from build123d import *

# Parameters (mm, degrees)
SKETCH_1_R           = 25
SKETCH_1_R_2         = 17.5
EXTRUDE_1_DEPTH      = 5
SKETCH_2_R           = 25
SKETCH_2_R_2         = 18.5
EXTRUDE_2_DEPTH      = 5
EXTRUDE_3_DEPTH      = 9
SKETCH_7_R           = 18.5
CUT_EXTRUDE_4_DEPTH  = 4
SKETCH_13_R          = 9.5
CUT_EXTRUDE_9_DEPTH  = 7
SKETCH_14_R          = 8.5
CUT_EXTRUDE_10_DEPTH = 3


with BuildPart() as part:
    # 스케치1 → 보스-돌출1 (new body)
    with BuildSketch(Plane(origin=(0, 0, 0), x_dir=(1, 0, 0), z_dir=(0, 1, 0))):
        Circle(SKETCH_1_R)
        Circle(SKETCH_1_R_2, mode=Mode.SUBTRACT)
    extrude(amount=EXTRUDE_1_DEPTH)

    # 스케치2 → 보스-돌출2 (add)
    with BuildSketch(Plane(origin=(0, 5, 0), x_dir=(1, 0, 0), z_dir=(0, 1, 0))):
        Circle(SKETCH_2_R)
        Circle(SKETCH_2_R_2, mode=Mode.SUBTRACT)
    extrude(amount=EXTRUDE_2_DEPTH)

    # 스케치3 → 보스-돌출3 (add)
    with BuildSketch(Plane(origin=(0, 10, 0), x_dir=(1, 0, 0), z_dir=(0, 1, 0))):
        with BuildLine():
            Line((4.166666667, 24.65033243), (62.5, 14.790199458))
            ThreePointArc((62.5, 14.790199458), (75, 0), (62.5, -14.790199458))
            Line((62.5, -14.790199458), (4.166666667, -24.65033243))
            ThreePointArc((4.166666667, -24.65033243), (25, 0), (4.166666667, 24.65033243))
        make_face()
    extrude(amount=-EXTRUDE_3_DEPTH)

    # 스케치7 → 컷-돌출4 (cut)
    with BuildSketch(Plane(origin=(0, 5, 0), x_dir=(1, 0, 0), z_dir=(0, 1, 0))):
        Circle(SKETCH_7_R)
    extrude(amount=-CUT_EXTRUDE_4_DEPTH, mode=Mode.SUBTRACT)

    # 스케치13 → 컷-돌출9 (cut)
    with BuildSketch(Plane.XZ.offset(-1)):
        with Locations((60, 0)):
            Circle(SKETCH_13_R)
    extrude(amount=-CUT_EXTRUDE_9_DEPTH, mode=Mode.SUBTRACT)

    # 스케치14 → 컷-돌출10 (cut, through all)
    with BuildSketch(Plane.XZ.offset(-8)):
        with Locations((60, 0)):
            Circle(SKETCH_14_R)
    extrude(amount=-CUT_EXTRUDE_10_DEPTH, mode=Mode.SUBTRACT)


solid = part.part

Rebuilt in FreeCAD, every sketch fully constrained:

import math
import FreeCAD as App
import Part
import Sketcher

doc = App.newDocument("Part")
params = doc.addObject("Spreadsheet::Sheet", "Params")
for row, (alias, value) in enumerate([
    ("sketch1_diameter", "50 mm"),
    ("sketch1_diameter2", "35 mm"),
    ("pad1_length", "5 mm"),
    ("sketch2_diameter", "50 mm"),
    ("sketch2_diameter2", "37 mm"),
    ("pad2_length", "5 mm"),
    ("sketch3_radius", "25 mm"),
    ("sketch3_radius2", "15 mm"),
    ("pad3_length", "9 mm"),
    ("sketch4_diameter", "37 mm"),
    ("pocket1_length", "4 mm"),
    ("sketch5_diameter", "19 mm"),
    ("pocket2_length", "7 mm"),
    ("sketch6_diameter", "17 mm"),
], start=1):
    params.set(f"A{row}", alias)
    params.set(f"B{row}", "=" + value)
    params.setAlias(f"B{row}", alias)

body = doc.addObject("PartDesign::Body", "Body")

sketch1 = body.newObject("Sketcher::SketchObject", "Sketch")
sketch1.AttachmentSupport = (doc.getObject("XZ_Plane"), [""])
sketch1.MapMode = "FlatFace"
sketch1.addGeometry([
    Part.Circle(App.Vector(0, 0, 0), App.Vector(0, 0, 1), 25),
    Part.Circle(App.Vector(0, 0, 0), App.Vector(0, 0, 1), 18),
], False)
sketch1.addConstraint([
    Sketcher.Constraint("Coincident", 0, 3, -1, 1),
    Sketcher.Constraint("Coincident", 1, 3, -1, 1),
    Sketcher.Constraint("Diameter", 0, 50.0),
    Sketcher.Constraint("Diameter", 1, 35.0),
])
sketch1.setExpression("Constraints[2]", "Params.sketch1_diameter")
sketch1.setExpression("Constraints[3]", "Params.sketch1_diameter2")
pad1 = body.newObject("PartDesign::Pad", "Pad")
pad1.Profile = sketch1
pad1.setExpression("Length", "Params.pad1_length")
pad1.Reversed = True

sketch2 = body.newObject("Sketcher::SketchObject", "Sketch001")
sketch2.AttachmentSupport = (doc.getObject("XZ_Plane"), [""])
sketch2.MapMode = "FlatFace"
sketch2.AttachmentOffset = App.Placement(App.Vector(0, 0, -5), App.Rotation())
sketch2.addGeometry([
    Part.Circle(App.Vector(0, 0, 0), App.Vector(0, 0, 1), 25),
    Part.Circle(App.Vector(0, 0, 0), App.Vector(0, 0, 1), 18),
], False)
sketch2.addConstraint([
    Sketcher.Constraint("Coincident", 0, 3, -1, 1),
    Sketcher.Constraint("Coincident", 1, 3, -1, 1),
    Sketcher.Constraint("Diameter", 0, 50.0),
    Sketcher.Constraint("Diameter", 1, 37.0),
])
sketch2.setExpression("Constraints[2]", "Params.sketch2_diameter")
sketch2.setExpression("Constraints[3]", "Params.sketch2_diameter2")
pad2 = body.newObject("PartDesign::Pad", "Pad001")
pad2.Profile = sketch2
pad2.setExpression("Length", "Params.pad2_length")
pad2.Reversed = True

sketch3 = body.newObject("Sketcher::SketchObject", "Sketch002")
sketch3.AttachmentSupport = (doc.getObject("XZ_Plane"), [""])
sketch3.MapMode = "FlatFace"
sketch3.AttachmentOffset = App.Placement(App.Vector(0, 0, -10), App.Rotation())
sketch3.addGeometry([
    Part.LineSegment(App.Vector(62, -15, 0), App.Vector(4, -25, 0)),
    Part.ArcOfCircle(Part.Circle(App.Vector(0, 0, 0), App.Vector(0, 0, 1), 25), math.radians(-80), math.radians(80)),
    Part.LineSegment(App.Vector(4, 25, 0), App.Vector(62, 15, 0)),
    Part.ArcOfCircle(Part.Circle(App.Vector(60, 0, 0), App.Vector(0, 0, 1), 15), math.radians(-80), math.radians(80)),
], False)
sketch3.addConstraint([
    Sketcher.Constraint("Tangent", 0, 2, 1, 1),
    Sketcher.Constraint("Tangent", 1, 2, 2, 1),
    Sketcher.Constraint("Tangent", 2, 2, 3, 2),
    Sketcher.Constraint("Tangent", 3, 1, 0, 1),
    Sketcher.Constraint("Coincident", 1, 3, -1, 1),
    Sketcher.Constraint("PointOnObject", 3, 3, -1),
    Sketcher.Constraint("Radius", 1, 25.0),
    Sketcher.Constraint("Radius", 3, 15.0),
    Sketcher.Constraint("DistanceX", -1, 1, 3, 3, 60.0),
])
sketch3.setExpression("Constraints[6]", "Params.sketch3_radius")
sketch3.setExpression("Constraints[7]", "Params.sketch3_radius2")
pad3 = body.newObject("PartDesign::Pad", "Pad002")
pad3.Profile = sketch3
pad3.setExpression("Length", "Params.pad3_length")

sketch4 = body.newObject("Sketcher::SketchObject", "Sketch003")
sketch4.AttachmentSupport = (doc.getObject("XZ_Plane"), [""])
sketch4.MapMode = "FlatFace"
sketch4.AttachmentOffset = App.Placement(App.Vector(0, 0, -5), App.Rotation())
sketch4.addGeometry(Part.Circle(App.Vector(0, 0, 0), App.Vector(0, 0, 1), 18), False)
sketch4.addConstraint([
    Sketcher.Constraint("Coincident", 0, 3, -1, 1),
    Sketcher.Constraint("Diameter", 0, 37.0),
])
sketch4.setExpression("Constraints[1]", "Params.sketch4_diameter")
pocket1 = body.newObject("PartDesign::Pocket", "Pocket")
pocket1.Profile = sketch4
pocket1.setExpression("Length", "Params.pocket1_length")
pocket1.Reversed = True

sketch5 = body.newObject("Sketcher::SketchObject", "Sketch004")
sketch5.AttachmentSupport = (doc.getObject("XZ_Plane"), [""])
sketch5.MapMode = "FlatFace"
sketch5.AttachmentOffset = App.Placement(App.Vector(0, 0, -1), App.Rotation())
sketch5.addGeometry(Part.Circle(App.Vector(60, 0, 0), App.Vector(0, 0, 1), 10), False)
sketch5.addConstraint([
    Sketcher.Constraint("PointOnObject", 0, 3, -1),
    Sketcher.Constraint("Diameter", 0, 19.0),
    Sketcher.Constraint("DistanceX", -1, 1, 0, 3, 60.0),
])
sketch5.setExpression("Constraints[1]", "Params.sketch5_diameter")
pocket2 = body.newObject("PartDesign::Pocket", "Pocket001")
pocket2.Profile = sketch5
pocket2.setExpression("Length", "Params.pocket2_length")

sketch6 = body.newObject("Sketcher::SketchObject", "Sketch005")
sketch6.AttachmentSupport = (doc.getObject("XZ_Plane"), [""])
sketch6.MapMode = "FlatFace"
sketch6.AttachmentOffset = App.Placement(App.Vector(0, 0, -8), App.Rotation())
sketch6.addGeometry(Part.Circle(App.Vector(60, 0, 0), App.Vector(0, 0, 1), 8), False)
sketch6.addConstraint([
    Sketcher.Constraint("PointOnObject", 0, 3, -1),
    Sketcher.Constraint("Diameter", 0, 17.0),
    Sketcher.Constraint("DistanceX", -1, 1, 0, 3, 60.0),
])
sketch6.setExpression("Constraints[1]", "Params.sketch6_diameter")
pocket3 = body.newObject("PartDesign::Pocket", "Pocket002")
pocket3.Profile = sketch6
pocket3.Type = "ThroughAll"

doc.recompute()
